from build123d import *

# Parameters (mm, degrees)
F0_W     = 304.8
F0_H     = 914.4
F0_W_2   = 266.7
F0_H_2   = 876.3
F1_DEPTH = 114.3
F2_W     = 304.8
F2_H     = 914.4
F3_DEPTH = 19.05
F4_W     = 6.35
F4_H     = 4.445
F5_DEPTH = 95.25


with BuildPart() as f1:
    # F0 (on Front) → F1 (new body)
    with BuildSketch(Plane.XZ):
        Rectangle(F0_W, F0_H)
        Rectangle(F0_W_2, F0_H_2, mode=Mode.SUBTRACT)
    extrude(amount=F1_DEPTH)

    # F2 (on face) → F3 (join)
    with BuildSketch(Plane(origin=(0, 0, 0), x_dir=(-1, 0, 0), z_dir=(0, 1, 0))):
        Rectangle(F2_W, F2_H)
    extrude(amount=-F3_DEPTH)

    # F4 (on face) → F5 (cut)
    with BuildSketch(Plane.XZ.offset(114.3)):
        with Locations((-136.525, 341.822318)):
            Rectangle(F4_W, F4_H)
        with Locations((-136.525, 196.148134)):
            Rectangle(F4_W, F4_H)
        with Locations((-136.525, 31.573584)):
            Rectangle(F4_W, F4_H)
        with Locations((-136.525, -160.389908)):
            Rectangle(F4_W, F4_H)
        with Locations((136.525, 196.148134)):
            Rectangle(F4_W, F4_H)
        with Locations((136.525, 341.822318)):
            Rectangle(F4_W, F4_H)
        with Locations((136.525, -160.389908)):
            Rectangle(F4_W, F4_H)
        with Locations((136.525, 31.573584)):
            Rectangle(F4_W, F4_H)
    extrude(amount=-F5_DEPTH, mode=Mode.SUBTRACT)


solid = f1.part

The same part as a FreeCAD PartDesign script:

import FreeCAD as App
import Part
import Sketcher
from FreeCAD import Vector
Q = App.Units.Quantity


def add_polygon(sketch, points):
    """Adds a closed chain of lines whose ends are joined by coincident constraints."""
    first, n = sketch.GeometryCount, len(points)
    for a, b in zip(points, points[1:] + points[:1]):
        sketch.addGeometry(Part.LineSegment(App.Vector(*a, 0), App.Vector(*b, 0)), False)
    for i in range(n):
        sketch.addConstraint(Sketcher.Constraint("Coincident", first + i, 2, first + (i + 1) % n, 1))

doc = App.newDocument("Part")
params = doc.addObject("Spreadsheet::Sheet", "Params")
for row, (alias, value) in enumerate([
    ("sketch1_width", "12 in"),
    ("sketch1_height", "36 in"),
    ("sketch1_width2", "10.5 in"),
    ("sketch1_height2", "34.5 in"),
    ("pad1_length", "4.5 in"),
    ("sketch2_width", "12 in"),
    ("sketch2_height", "36 in"),
    ("pad2_length", "0.75 in"),
    ("sketch3_width", "0.25 in"),
    ("sketch3_height", "0.175 in"),
    ("pocket1_length", "3.75 in"),
], start=1):
    params.set(f"A{row}", alias)
    params.set(f"B{row}", "=" + value)
    params.setAlias(f"B{row}", alias)

body = doc.addObject("PartDesign::Body", "Body")

# Sketch on XZ plane
sketch1 = body.newObject("Sketcher::SketchObject", "Sketch")
sketch1.AttachmentSupport = (doc.getObject("XZ_Plane"), [""])
sketch1.MapMode = "FlatFace"
add_polygon(sketch1, [(-152, 457), (-152, -457), (152, -457), (152, 457)])  # lines 0-3
add_polygon(sketch1, [(133, -438), (-133, -438), (-133, 438), (133, 438)])  # lines 4-7
sketch1.addConstraint(Sketcher.Constraint("Vertical", 0))
sketch1.addConstraint(Sketcher.Constraint("Horizontal", 1))
sketch1.addConstraint(Sketcher.Constraint("Vertical", 2))
sketch1.addConstraint(Sketcher.Constraint("Horizontal", 3))
sketch1.addConstraint(Sketcher.Constraint("Horizontal", 4))
sketch1.addConstraint(Sketcher.Constraint("Vertical", 5))
sketch1.addConstraint(Sketcher.Constraint("Horizontal", 6))
sketch1.addConstraint(Sketcher.Constraint("Vertical", 7))
sketch1.addConstraint(Sketcher.Constraint("Symmetric", 0, 2, 2, 2, -1, 1))
sketch1.addConstraint(Sketcher.Constraint("Symmetric", 4, 2, 6, 2, -1, 1))
sketch1.addConstraint(Sketcher.Constraint("DistanceX", 1, 1, 1, 2, Q("12 in")))
sketch1.addConstraint(Sketcher.Constraint("DistanceY", 0, 2, 0, 1, Q("36 in")))
sketch1.addConstraint(Sketcher.Constraint("DistanceX", 4, 2, 4, 1, Q("10.5 in")))
sketch1.addConstraint(Sketcher.Constraint("DistanceY", 5, 1, 5, 2, Q("34.5 in")))
sketch1.setExpression("Constraints[18]", "Params.sketch1_width")
sketch1.setExpression("Constraints[19]", "Params.sketch1_height")
sketch1.setExpression("Constraints[20]", "Params.sketch1_width2")
sketch1.setExpression("Constraints[21]", "Params.sketch1_height2")
pad1 = body.newObject("PartDesign::Pad", "Pad")
pad1.Profile = sketch1
pad1.setExpression("Length", "Params.pad1_length")

# Sketch on XZ plane
sketch2 = body.newObject("Sketcher::SketchObject", "Sketch001")
sketch2.AttachmentSupport = (doc.getObject("XZ_Plane"), [""])
sketch2.MapMode = "FlatFace"
add_polygon(sketch2, [(152, 457), (152, -457), (-152, -457), (-152, 457)])  # lines 0-3
sketch2.addConstraint(Sketcher.Constraint("Vertical", 0))
sketch2.addConstraint(Sketcher.Constraint("Horizontal", 1))
sketch2.addConstraint(Sketcher.Constraint("Vertical", 2))
sketch2.addConstraint(Sketcher.Constraint("Horizontal", 3))
sketch2.addConstraint(Sketcher.Constraint("Symmetric", 0, 2, 2, 2, -1, 1))
sketch2.addConstraint(Sketcher.Constraint("DistanceX", 1, 2, 1, 1, Q("12 in")))
sketch2.addConstraint(Sketcher.Constraint("DistanceY", 0, 2, 0, 1, Q("36 in")))
sketch2.setExpression("Constraints[9]", "Params.sketch2_width")
sketch2.setExpression("Constraints[10]", "Params.sketch2_height")
pad2 = body.newObject("PartDesign::Pad", "Pad001")
pad2.Profile = sketch2
pad2.setExpression("Length", "Params.pad2_length")

# Sketch on XZ plane
sketch3 = body.newObject("Sketcher::SketchObject", "Sketch002")
sketch3.AttachmentSupport = (doc.getObject("XZ_Plane"), [""])
sketch3.MapMode = "FlatFace"
sketch3.AttachmentOffset = App.Placement(Vector(0, 0, 4.5 * 25.4), App.Rotation())
add_polygon(sketch3, [(-139.7, 344), (-139.7, 339.6), (-133.3, 339.6), (-133.3, 344)])  # lines 0-3
add_polygon(sketch3, [(-139.7, 198.4), (-139.7, 193.9), (-133.3, 193.9), (-133.3, 198.4)])  # lines 4-7
add_polygon(sketch3, [(-139.7, 33.8), (-139.7, 29.4), (-133.3, 29.4), (-133.3, 33.8)])  # lines 8-11
add_polygon(sketch3, [(-139.7, -158.2), (-139.7, -162.6), (-133.3, -162.6), (-133.3, -158.2)])  # lines 12-15
add_polygon(sketch3, [(133.3, 198.4), (133.3, 193.9), (139.7, 193.9), (139.7, 198.4)])  # lines 16-19
add_polygon(sketch3, [(133.3, 344), (133.3, 339.6), (139.7, 339.6), (139.7, 344)])  # lines 20-23
add_polygon(sketch3, [(133.3, -158.2), (133.3, -162.6), (139.7, -162.6), (139.7, -158.2)])  # lines 24-27
add_polygon(sketch3, [(133.3, 33.8), (133.3, 29.4), (139.7, 29.4), (139.7, 33.8)])  # lines 28-31
sketch3.addConstraint(Sketcher.Constraint("Vertical", 0))
sketch3.addConstraint(Sketcher.Constraint("Horizontal", 1))
sketch3.addConstraint(Sketcher.Constraint("Vertical", 2))
sketch3.addConstraint(Sketcher.Constraint("Horizontal", 3))
sketch3.addConstraint(Sketcher.Constraint("Vertical", 4))
sketch3.addConstraint(Sketcher.Constraint("Horizontal", 5))
sketch3.addConstraint(Sketcher.Constraint("Vertical", 6))
sketch3.addConstraint(Sketcher.Constraint("Horizontal", 7))
sketch3.addConstraint(Sketcher.Constraint("Vertical", 8))
sketch3.addConstraint(Sketcher.Constraint("Horizontal", 9))
sketch3.addConstraint(Sketcher.Constraint("Vertical", 10))
sketch3.addConstraint(Sketcher.Constraint("Horizontal", 11))
sketch3.addConstraint(Sketcher.Constraint("Vertical", 12))
sketch3.addConstraint(Sketcher.Constraint("Horizontal", 13))
sketch3.addConstraint(Sketcher.Constraint("Vertical", 14))
sketch3.addConstraint(Sketcher.Constraint("Horizontal", 15))
sketch3.addConstraint(Sketcher.Constraint("Vertical", 16))
sketch3.addConstraint(Sketcher.Constraint("Horizontal", 17))
sketch3.addConstraint(Sketcher.Constraint("Vertical", 18))
sketch3.addConstraint(Sketcher.Constraint("Horizontal", 19))
sketch3.addConstraint(Sketcher.Constraint("Vertical", 20))
sketch3.addConstraint(Sketcher.Constraint("Horizontal", 21))
sketch3.addConstraint(Sketcher.Constraint("Vertical", 22))
sketch3.addConstraint(Sketcher.Constraint("Horizontal", 23))
sketch3.addConstraint(Sketcher.Constraint("Vertical", 24))
sketch3.addConstraint(Sketcher.Constraint("Horizontal", 25))
sketch3.addConstraint(Sketcher.Constraint("Vertical", 26))
sketch3.addConstraint(Sketcher.Constraint("Horizontal", 27))
sketch3.addConstraint(Sketcher.Constraint("Vertical", 28))
sketch3.addConstraint(Sketcher.Constraint("Horizontal", 29))
sketch3.addConstraint(Sketcher.Constraint("Vertical", 30))
sketch3.addConstraint(Sketcher.Constraint("Horizontal", 31))
sketch3.addConstraint(Sketcher.Constraint("Symmetric", 5, 2, 16, 2, -2))
sketch3.addConstraint(Sketcher.Constraint("Symmetric", 7, 2, 18, 2, -2))
sketch3.addConstraint(Sketcher.Constraint("Symmetric", 1, 2, 20, 2, -2))
sketch3.addConstraint(Sketcher.Constraint("Symmetric", 3, 2, 22, 2, -2))
sketch3.addConstraint(Sketcher.Constraint("Symmetric", 13, 2, 24, 2, -2))
sketch3.addConstraint(Sketcher.Constraint("Symmetric", 15, 2, 26, 2, -2))
sketch3.addConstraint(Sketcher.Constraint("Symmetric", 9, 2, 28, 2, -2))
sketch3.addConstraint(Sketcher.Constraint("Symmetric", 11, 2, 30, 2, -2))
sketch3.addConstraint(Sketcher.Constraint("Vertical", 3, 2, 4, 2))
sketch3.addConstraint(Sketcher.Constraint("Vertical", 2, 2, 5, 2))
sketch3.addConstraint(Sketcher.Constraint("Vertical", 7, 2, 8, 2))
sketch3.addConstraint(Sketcher.Constraint("Vertical", 6, 2, 9, 2))
sketch3.addConstraint(Sketcher.Constraint("Vertical", 11, 2, 12, 2))
sketch3.addConstraint(Sketcher.Constraint("Vertical", 10, 2, 13, 2))
sketch3.addConstraint(Sketcher.Constraint("Equal", 2, 4))
sketch3.addConstraint(Sketcher.Constraint("Equal", 6, 8))
sketch3.addConstraint(Sketcher.Constraint("Equal", 10, 12))
sketch3.addConstraint(Sketcher.Constraint("DistanceX", 4, 2, 17, 2, Q("11 in")))
sketch3.addConstraint(Sketcher.Constraint("DistanceX", 1, 1, 1, 2, Q("0.25 in")))
sketch3.addConstraint(Sketcher.Constraint("DistanceY", 0, 2, 0, 1, Q("0.175 in")))
sketch3.addConstraint(Sketcher.Constraint("DistanceY", -1, 1, 0, 2, Q("339.599818 mm")))
sketch3.addConstraint(Sketcher.Constraint("DistanceY", 14, 2, -1, 1, Q("158.167408 mm")))
sketch3.addConstraint(Sketcher.Constraint("DistanceY", 8, 2, 4, 2, Q("164.57455 mm")))
sketch3.addConstraint(Sketcher.Constraint("DistanceY", 12, 2, 8, 2, Q("191.963492 mm")))
sketch3.setExpression("Constraints[82]", "Params.sketch3_width")
sketch3.setExpression("Constraints[83]", "Params.sketch3_height")
pocket1 = body.newObject("PartDesign::Pocket", "Pocket")
pocket1.Profile = sketch3
pocket1.setExpression("Length", "Params.pocket1_length")

doc.recompute()
